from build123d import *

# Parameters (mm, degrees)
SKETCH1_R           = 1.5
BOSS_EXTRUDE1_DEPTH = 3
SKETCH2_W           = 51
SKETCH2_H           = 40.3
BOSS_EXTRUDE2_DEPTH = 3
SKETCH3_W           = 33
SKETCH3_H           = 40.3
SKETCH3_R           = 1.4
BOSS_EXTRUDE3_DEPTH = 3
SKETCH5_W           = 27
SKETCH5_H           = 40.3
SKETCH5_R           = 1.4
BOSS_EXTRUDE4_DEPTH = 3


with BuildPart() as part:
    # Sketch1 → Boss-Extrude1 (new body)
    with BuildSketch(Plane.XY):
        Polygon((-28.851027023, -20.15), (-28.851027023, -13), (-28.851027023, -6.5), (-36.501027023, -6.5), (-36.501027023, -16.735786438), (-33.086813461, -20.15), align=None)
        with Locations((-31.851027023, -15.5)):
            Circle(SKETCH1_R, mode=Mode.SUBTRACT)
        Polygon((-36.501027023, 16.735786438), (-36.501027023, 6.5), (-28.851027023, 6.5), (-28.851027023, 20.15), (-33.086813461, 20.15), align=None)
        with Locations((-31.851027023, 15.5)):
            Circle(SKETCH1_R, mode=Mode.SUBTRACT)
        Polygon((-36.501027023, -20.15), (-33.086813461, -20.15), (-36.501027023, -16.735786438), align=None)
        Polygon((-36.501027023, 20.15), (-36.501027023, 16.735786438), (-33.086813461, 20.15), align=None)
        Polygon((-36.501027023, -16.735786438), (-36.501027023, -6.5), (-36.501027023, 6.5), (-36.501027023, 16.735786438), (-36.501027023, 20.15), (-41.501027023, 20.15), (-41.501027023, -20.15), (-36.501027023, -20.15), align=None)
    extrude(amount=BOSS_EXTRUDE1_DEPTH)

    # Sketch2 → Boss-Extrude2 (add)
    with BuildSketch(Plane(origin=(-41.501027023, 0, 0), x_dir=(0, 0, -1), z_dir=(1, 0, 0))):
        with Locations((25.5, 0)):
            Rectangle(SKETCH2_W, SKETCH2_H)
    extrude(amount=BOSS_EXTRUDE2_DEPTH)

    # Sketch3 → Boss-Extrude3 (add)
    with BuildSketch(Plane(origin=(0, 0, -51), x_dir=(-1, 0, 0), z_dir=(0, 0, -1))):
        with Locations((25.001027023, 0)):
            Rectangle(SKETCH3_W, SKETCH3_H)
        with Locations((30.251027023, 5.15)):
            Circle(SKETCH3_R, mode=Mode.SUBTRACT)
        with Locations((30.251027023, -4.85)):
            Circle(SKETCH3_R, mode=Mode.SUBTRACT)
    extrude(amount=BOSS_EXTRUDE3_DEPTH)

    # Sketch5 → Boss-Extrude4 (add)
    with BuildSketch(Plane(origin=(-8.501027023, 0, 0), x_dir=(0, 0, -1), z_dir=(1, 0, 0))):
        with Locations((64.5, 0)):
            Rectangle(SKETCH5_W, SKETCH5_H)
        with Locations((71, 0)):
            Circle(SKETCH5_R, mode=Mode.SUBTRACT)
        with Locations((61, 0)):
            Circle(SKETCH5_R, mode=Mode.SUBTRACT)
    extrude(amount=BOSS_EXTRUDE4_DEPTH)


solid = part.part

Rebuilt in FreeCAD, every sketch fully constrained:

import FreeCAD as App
import Part
import Sketcher


def add_polygon(sketch, points):
    """Adds a closed chain of lines whose ends are joined by coincident constraints."""
    first, n = sketch.GeometryCount, len(points)
    for a, b in zip(points, points[1:] + points[:1]):
        sketch.addGeometry(Part.LineSegment(App.Vector(*a, 0), App.Vector(*b, 0)), False)
    for i in range(n):
        sketch.addConstraint(Sketcher.Constraint("Coincident", first + i, 2, first + (i + 1) % n, 1))

doc = App.newDocument("Part")
params = doc.addObject("Spreadsheet::Sheet", "Params")
for row, (alias, value) in enumerate([
    ("sketch1_diameter", "3 mm"),
    ("sketch1_height", "13 mm"),
    ("sketch1_height2", "40.3 mm"),
    ("sketch1_width", "7.65 mm"),
    ("pad1_length", "3 mm"),
    ("sketch2_height", "51 mm"),
    ("sketch2_width", "40.3 mm"),
    ("pad2_length", "3 mm"),
    ("sketch3_diameter", "2.8 mm"),
    ("sketch3_width", "33 mm"),
    ("sketch3_height", "40.3 mm"),
    ("pad3_length", "3 mm"),
    ("sketch4_diameter", "2.8 mm"),
    ("sketch4_height", "27 mm"),
    ("sketch4_width", "40.3 mm"),
    ("pad4_length", "3 mm"),
], start=1):
    params.set(f"A{row}", alias)
    params.set(f"B{row}", "=" + value)
    params.setAlias(f"B{row}", alias)

body = doc.addObject("PartDesign::Body", "Body")

# Sketch on XY plane
sketch1 = body.newObject("Sketcher::SketchObject", "Sketch")
sketch1.AttachmentSupport = (doc.getObject("XY_Plane"), [""])
sketch1.MapMode = "FlatFace"
add_polygon(sketch1, [(-28.851027, -20.15), (-28.851027, -6.5), (-36.501027, -6.5), (-36.501027, 6.5), (-28.851027, 6.5), (-28.851027, 20.15), (-41.501027, 20.15), (-41.501027, -20.15)])  # lines 0-7
sketch1.addGeometry(Part.Circle(App.Vector(-31.851027, -15.5, 0), App.Vector(0, 0, 1), 1.5), False)  # 8
sketch1.addGeometry(Part.Circle(App.Vector(-31.851027, 15.5, 0), App.Vector(0, 0, 1), 1.5), False)  # 9
sketch1.addConstraint([
    Sketcher.Constraint("Vertical", 0),
    Sketcher.Constraint("Horizontal", 1),
    Sketcher.Constraint("Vertical", 2),
    Sketcher.Constraint("Horizontal", 3),
    Sketcher.Constraint("Vertical", 4),
    Sketcher.Constraint("Horizontal", 5),
    Sketcher.Constraint("Vertical", 6),
    Sketcher.Constraint("Horizontal", 7),
    Sketcher.Constraint("Equal", 8, 9),
    Sketcher.Constraint("Symmetric", 8, 3, 9, 3, -1),
    Sketcher.Constraint("Symmetric", 0, 2, 3, 2, -1),
    Sketcher.Constraint("Equal", 0, 4),
    Sketcher.Constraint("Diameter", 8, 3.0),
    Sketcher.Constraint("DistanceY", 2, 1, 2, 2, 13.0),
    Sketcher.Constraint("DistanceY", 6, 2, 6, 1, 40.3),
    Sketcher.Constraint("DistanceY", 8, 3, 9, 3, 31.0),
    Sketcher.Constraint("DistanceX", 8, 3, 0, 2, 3.0),
    Sketcher.Constraint("DistanceX", 5, 2, 2, 2, 5.0),
    Sketcher.Constraint("DistanceX", 1, 2, 1, 1, 7.65),
    Sketcher.Constraint("DistanceX", 8, 3, -1, 1, 31.851027),
])
sketch1.setExpression("Constraints[20]", "Params.sketch1_diameter")
sketch1.setExpression("Constraints[21]", "Params.sketch1_height")
sketch1.setExpression("Constraints[22]", "Params.sketch1_height2")
sketch1.setExpression("Constraints[26]", "Params.sketch1_width")
pad1 = body.newObject("PartDesign::Pad", "Pad")
pad1.Profile = sketch1
pad1.setExpression("Length", "Params.pad1_length")

# Sketch on YZ plane
sketch2 = body.newObject("Sketcher::SketchObject", "Sketch001")
sketch2.AttachmentSupport = (doc.getObject("YZ_Plane"), [""])
sketch2.MapMode = "FlatFace"
sketch2.AttachmentOffset = App.Placement(App.Vector(0, 0, -41.501027), App.Rotation())
add_polygon(sketch2, [(20.15, 0), (-20.15, 0), (-20.15, -51), (20.15, -51)])  # lines 0-3
sketch2.addConstraint([
    Sketcher.Constraint("Horizontal", 0),
    Sketcher.Constraint("Vertical", 1),
    Sketcher.Constraint("Horizontal", 2),
    Sketcher.Constraint("Vertical", 3),
    Sketcher.Constraint("Symmetric", 0, 2, 3, 2, -1, 1),
    Sketcher.Constraint("DistanceY", 1, 2, 1, 1, 51.0),
    Sketcher.Constraint("DistanceX", 0, 2, 0, 1, 40.3),
])
sketch2.setExpression("Constraints[9]", "Params.sketch2_height")
sketch2.setExpression("Constraints[10]", "Params.sketch2_width")
pad2 = body.newObject("PartDesign::Pad", "Pad001")
pad2.Profile = sketch2
pad2.setExpression("Length", "Params.pad2_length")

# Sketch on XY plane
sketch3 = body.newObject("Sketcher::SketchObject", "Sketch002")
sketch3.AttachmentSupport = (doc.getObject("XY_Plane"), [""])
sketch3.MapMode = "FlatFace"
sketch3.AttachmentOffset = App.Placement(App.Vector(0, 0, -51), App.Rotation())
add_polygon(sketch3, [(-8.501027, 20.15), (-8.501027, -20.15), (-41.501027, -20.15), (-41.501027, 20.15)])  # lines 0-3
sketch3.addGeometry(Part.Circle(App.Vector(-30.251027, -4.85, 0), App.Vector(0, 0, 1), 1.4), False)  # 4
sketch3.addGeometry(Part.Circle(App.Vector(-30.251027, 5.15, 0), App.Vector(0, 0, 1), 1.4), False)  # 5
sketch3.addConstraint([
    Sketcher.Constraint("Vertical", 0),
    Sketcher.Constraint("Horizontal", 1),
    Sketcher.Constraint("Vertical", 2),
    Sketcher.Constraint("Horizontal", 3),
    Sketcher.Constraint("Equal", 4, 5),
    Sketcher.Constraint("Vertical", 4, 3, 5, 3),
    Sketcher.Constraint("Diameter", 4, 2.8),
    Sketcher.Constraint("DistanceX", 1, 2, 1, 1, 33.0),
    Sketcher.Constraint("DistanceY", 0, 2, 0, 1, 40.3),
    Sketcher.Constraint("DistanceY", 4, 3, 5, 3, 10.0),
    Sketcher.Constraint("DistanceY", 5, 3, 2, 2, 15.0),
    Sketcher.Constraint("DistanceY", 4, 3, -1, 1, 4.85),
    Sketcher.Constraint("DistanceX", 4, 3, 0, 2, 21.75),
    Sketcher.Constraint("DistanceX", 4, 3, -1, 1, 30.251027),
])
sketch3.setExpression("Constraints[10]", "Params.sketch3_diameter")
sketch3.setExpression("Constraints[11]", "Params.sketch3_width")
sketch3.setExpression("Constraints[12]", "Params.sketch3_height")
pad3 = body.newObject("PartDesign::Pad", "Pad002")
pad3.Profile = sketch3
pad3.setExpression("Length", "Params.pad3_length")
pad3.Reversed = True

# Sketch on YZ plane
sketch4 = body.newObject("Sketcher::SketchObject", "Sketch003")
sketch4.AttachmentSupport = (doc.getObject("YZ_Plane"), [""])
sketch4.MapMode = "FlatFace"
sketch4.AttachmentOffset = App.Placement(App.Vector(0, 0, -8.501027), App.Rotation())
add_polygon(sketch4, [(20.15, -51), (-20.15, -51), (-20.15, -78), (20.15, -78)])  # lines 0-3
sketch4.addGeometry(Part.Circle(App.Vector(0, -61, 0), App.Vector(0, 0, 1), 1.4), False)  # 4
sketch4.addGeometry(Part.Circle(App.Vector(0, -71, 0), App.Vector(0, 0, 1), 1.4), False)  # 5
sketch4.addConstraint([
    Sketcher.Constraint("Horizontal", 0),
    Sketcher.Constraint("Vertical", 1),
    Sketcher.Constraint("Horizontal", 2),
    Sketcher.Constraint("Vertical", 3),
    Sketcher.Constraint("Equal", 4, 5),
    Sketcher.Constraint("PointOnObject", 4, 3, -2),
    Sketcher.Constraint("PointOnObject", 5, 3, -2),
    Sketcher.Constraint("Diameter", 4, 2.8),
    Sketcher.Constraint("DistanceY", 1, 2, 1, 1, 27.0),
    Sketcher.Constraint("DistanceX", 0, 2, 0, 1, 40.3),
    Sketcher.Constraint("DistanceY", 4, 3, -1, 1, 61.0),
    Sketcher.Constraint("DistanceY", 5, 3, -1, 1, 71.0),
    Sketcher.Constraint("DistanceY", 0, 2, -1, 1, 51.0),
    Sketcher.Constraint("DistanceX", 0, 2, -1, 1, 20.15),
])
sketch4.setExpression("Constraints[11]", "Params.sketch4_diameter")
sketch4.setExpression("Constraints[12]", "Params.sketch4_height")
sketch4.setExpression("Constraints[13]", "Params.sketch4_width")
pad4 = body.newObject("PartDesign::Pad", "Pad003")
pad4.Profile = sketch4
pad4.setExpression("Length", "Params.pad4_length")

doc.recompute()
